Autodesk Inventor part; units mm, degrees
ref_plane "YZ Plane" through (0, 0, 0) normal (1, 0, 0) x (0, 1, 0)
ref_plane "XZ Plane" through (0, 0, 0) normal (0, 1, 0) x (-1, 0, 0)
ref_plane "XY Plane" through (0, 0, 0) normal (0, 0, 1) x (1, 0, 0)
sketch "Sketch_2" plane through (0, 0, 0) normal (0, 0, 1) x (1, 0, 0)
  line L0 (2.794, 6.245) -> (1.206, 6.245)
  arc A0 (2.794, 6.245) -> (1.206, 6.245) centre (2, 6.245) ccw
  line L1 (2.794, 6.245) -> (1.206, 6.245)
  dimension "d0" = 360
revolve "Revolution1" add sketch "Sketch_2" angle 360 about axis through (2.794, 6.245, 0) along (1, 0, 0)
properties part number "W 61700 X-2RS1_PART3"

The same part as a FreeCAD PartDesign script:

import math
import FreeCAD as App
import Part
import Sketcher

V = App.Vector
Q = App.Units.Quantity

doc = App.newDocument("Part")
body = doc.addObject("PartDesign::Body", "Body")

# Sketch on XY plane
sketch1 = body.newObject("Sketcher::SketchObject", "Sketch")
sketch1.AttachmentSupport = (doc.getObject("XY_Plane"), [""])
sketch1.MapMode = "FlatFace"
sketch1.addGeometry([
    Part.LineSegment(V(1.2, 6.2, 0), V(2.8, 6.2, 0)),
    Part.ArcOfCircle(Part.Circle(V(2, 6.2, 0), V(0, 0, 1), 0.8), math.radians(0), math.radians(180)),
], False)
sketch1.addGeometry(Part.LineSegment(V(1.2, 6.2, 0), V(2.8, 6.2, 0)), True)  # axis
sketch1.addConstraint([
    Sketcher.Constraint("Coincident", 0, 1, 1, 2),
    Sketcher.Constraint("Coincident", 1, 1, 0, 2),
    Sketcher.Constraint("Horizontal", 0),
    Sketcher.Constraint("Horizontal", 2),
    Sketcher.Constraint("Coincident", 2, 1, 0, 1),
    Sketcher.Constraint("Horizontal", 1, 3, 0, 1),
    Sketcher.Constraint("Equal", 0, 2),
    Sketcher.Constraint("DistanceX", -1, 1, 1, 3, Q("2 mm")),
    Sketcher.Constraint("Radius", 1, Q("0.794 mm")),
    Sketcher.Constraint("DistanceY", -1, 1, 1, 3, Q("6.245 mm")),
])
revolution = body.newObject("PartDesign::Revolution", "Revolution")
revolution.Profile = sketch1
revolution.ReferenceAxis = (sketch1, ["Axis0"])
revolution.Angle = 360

doc.recompute()
